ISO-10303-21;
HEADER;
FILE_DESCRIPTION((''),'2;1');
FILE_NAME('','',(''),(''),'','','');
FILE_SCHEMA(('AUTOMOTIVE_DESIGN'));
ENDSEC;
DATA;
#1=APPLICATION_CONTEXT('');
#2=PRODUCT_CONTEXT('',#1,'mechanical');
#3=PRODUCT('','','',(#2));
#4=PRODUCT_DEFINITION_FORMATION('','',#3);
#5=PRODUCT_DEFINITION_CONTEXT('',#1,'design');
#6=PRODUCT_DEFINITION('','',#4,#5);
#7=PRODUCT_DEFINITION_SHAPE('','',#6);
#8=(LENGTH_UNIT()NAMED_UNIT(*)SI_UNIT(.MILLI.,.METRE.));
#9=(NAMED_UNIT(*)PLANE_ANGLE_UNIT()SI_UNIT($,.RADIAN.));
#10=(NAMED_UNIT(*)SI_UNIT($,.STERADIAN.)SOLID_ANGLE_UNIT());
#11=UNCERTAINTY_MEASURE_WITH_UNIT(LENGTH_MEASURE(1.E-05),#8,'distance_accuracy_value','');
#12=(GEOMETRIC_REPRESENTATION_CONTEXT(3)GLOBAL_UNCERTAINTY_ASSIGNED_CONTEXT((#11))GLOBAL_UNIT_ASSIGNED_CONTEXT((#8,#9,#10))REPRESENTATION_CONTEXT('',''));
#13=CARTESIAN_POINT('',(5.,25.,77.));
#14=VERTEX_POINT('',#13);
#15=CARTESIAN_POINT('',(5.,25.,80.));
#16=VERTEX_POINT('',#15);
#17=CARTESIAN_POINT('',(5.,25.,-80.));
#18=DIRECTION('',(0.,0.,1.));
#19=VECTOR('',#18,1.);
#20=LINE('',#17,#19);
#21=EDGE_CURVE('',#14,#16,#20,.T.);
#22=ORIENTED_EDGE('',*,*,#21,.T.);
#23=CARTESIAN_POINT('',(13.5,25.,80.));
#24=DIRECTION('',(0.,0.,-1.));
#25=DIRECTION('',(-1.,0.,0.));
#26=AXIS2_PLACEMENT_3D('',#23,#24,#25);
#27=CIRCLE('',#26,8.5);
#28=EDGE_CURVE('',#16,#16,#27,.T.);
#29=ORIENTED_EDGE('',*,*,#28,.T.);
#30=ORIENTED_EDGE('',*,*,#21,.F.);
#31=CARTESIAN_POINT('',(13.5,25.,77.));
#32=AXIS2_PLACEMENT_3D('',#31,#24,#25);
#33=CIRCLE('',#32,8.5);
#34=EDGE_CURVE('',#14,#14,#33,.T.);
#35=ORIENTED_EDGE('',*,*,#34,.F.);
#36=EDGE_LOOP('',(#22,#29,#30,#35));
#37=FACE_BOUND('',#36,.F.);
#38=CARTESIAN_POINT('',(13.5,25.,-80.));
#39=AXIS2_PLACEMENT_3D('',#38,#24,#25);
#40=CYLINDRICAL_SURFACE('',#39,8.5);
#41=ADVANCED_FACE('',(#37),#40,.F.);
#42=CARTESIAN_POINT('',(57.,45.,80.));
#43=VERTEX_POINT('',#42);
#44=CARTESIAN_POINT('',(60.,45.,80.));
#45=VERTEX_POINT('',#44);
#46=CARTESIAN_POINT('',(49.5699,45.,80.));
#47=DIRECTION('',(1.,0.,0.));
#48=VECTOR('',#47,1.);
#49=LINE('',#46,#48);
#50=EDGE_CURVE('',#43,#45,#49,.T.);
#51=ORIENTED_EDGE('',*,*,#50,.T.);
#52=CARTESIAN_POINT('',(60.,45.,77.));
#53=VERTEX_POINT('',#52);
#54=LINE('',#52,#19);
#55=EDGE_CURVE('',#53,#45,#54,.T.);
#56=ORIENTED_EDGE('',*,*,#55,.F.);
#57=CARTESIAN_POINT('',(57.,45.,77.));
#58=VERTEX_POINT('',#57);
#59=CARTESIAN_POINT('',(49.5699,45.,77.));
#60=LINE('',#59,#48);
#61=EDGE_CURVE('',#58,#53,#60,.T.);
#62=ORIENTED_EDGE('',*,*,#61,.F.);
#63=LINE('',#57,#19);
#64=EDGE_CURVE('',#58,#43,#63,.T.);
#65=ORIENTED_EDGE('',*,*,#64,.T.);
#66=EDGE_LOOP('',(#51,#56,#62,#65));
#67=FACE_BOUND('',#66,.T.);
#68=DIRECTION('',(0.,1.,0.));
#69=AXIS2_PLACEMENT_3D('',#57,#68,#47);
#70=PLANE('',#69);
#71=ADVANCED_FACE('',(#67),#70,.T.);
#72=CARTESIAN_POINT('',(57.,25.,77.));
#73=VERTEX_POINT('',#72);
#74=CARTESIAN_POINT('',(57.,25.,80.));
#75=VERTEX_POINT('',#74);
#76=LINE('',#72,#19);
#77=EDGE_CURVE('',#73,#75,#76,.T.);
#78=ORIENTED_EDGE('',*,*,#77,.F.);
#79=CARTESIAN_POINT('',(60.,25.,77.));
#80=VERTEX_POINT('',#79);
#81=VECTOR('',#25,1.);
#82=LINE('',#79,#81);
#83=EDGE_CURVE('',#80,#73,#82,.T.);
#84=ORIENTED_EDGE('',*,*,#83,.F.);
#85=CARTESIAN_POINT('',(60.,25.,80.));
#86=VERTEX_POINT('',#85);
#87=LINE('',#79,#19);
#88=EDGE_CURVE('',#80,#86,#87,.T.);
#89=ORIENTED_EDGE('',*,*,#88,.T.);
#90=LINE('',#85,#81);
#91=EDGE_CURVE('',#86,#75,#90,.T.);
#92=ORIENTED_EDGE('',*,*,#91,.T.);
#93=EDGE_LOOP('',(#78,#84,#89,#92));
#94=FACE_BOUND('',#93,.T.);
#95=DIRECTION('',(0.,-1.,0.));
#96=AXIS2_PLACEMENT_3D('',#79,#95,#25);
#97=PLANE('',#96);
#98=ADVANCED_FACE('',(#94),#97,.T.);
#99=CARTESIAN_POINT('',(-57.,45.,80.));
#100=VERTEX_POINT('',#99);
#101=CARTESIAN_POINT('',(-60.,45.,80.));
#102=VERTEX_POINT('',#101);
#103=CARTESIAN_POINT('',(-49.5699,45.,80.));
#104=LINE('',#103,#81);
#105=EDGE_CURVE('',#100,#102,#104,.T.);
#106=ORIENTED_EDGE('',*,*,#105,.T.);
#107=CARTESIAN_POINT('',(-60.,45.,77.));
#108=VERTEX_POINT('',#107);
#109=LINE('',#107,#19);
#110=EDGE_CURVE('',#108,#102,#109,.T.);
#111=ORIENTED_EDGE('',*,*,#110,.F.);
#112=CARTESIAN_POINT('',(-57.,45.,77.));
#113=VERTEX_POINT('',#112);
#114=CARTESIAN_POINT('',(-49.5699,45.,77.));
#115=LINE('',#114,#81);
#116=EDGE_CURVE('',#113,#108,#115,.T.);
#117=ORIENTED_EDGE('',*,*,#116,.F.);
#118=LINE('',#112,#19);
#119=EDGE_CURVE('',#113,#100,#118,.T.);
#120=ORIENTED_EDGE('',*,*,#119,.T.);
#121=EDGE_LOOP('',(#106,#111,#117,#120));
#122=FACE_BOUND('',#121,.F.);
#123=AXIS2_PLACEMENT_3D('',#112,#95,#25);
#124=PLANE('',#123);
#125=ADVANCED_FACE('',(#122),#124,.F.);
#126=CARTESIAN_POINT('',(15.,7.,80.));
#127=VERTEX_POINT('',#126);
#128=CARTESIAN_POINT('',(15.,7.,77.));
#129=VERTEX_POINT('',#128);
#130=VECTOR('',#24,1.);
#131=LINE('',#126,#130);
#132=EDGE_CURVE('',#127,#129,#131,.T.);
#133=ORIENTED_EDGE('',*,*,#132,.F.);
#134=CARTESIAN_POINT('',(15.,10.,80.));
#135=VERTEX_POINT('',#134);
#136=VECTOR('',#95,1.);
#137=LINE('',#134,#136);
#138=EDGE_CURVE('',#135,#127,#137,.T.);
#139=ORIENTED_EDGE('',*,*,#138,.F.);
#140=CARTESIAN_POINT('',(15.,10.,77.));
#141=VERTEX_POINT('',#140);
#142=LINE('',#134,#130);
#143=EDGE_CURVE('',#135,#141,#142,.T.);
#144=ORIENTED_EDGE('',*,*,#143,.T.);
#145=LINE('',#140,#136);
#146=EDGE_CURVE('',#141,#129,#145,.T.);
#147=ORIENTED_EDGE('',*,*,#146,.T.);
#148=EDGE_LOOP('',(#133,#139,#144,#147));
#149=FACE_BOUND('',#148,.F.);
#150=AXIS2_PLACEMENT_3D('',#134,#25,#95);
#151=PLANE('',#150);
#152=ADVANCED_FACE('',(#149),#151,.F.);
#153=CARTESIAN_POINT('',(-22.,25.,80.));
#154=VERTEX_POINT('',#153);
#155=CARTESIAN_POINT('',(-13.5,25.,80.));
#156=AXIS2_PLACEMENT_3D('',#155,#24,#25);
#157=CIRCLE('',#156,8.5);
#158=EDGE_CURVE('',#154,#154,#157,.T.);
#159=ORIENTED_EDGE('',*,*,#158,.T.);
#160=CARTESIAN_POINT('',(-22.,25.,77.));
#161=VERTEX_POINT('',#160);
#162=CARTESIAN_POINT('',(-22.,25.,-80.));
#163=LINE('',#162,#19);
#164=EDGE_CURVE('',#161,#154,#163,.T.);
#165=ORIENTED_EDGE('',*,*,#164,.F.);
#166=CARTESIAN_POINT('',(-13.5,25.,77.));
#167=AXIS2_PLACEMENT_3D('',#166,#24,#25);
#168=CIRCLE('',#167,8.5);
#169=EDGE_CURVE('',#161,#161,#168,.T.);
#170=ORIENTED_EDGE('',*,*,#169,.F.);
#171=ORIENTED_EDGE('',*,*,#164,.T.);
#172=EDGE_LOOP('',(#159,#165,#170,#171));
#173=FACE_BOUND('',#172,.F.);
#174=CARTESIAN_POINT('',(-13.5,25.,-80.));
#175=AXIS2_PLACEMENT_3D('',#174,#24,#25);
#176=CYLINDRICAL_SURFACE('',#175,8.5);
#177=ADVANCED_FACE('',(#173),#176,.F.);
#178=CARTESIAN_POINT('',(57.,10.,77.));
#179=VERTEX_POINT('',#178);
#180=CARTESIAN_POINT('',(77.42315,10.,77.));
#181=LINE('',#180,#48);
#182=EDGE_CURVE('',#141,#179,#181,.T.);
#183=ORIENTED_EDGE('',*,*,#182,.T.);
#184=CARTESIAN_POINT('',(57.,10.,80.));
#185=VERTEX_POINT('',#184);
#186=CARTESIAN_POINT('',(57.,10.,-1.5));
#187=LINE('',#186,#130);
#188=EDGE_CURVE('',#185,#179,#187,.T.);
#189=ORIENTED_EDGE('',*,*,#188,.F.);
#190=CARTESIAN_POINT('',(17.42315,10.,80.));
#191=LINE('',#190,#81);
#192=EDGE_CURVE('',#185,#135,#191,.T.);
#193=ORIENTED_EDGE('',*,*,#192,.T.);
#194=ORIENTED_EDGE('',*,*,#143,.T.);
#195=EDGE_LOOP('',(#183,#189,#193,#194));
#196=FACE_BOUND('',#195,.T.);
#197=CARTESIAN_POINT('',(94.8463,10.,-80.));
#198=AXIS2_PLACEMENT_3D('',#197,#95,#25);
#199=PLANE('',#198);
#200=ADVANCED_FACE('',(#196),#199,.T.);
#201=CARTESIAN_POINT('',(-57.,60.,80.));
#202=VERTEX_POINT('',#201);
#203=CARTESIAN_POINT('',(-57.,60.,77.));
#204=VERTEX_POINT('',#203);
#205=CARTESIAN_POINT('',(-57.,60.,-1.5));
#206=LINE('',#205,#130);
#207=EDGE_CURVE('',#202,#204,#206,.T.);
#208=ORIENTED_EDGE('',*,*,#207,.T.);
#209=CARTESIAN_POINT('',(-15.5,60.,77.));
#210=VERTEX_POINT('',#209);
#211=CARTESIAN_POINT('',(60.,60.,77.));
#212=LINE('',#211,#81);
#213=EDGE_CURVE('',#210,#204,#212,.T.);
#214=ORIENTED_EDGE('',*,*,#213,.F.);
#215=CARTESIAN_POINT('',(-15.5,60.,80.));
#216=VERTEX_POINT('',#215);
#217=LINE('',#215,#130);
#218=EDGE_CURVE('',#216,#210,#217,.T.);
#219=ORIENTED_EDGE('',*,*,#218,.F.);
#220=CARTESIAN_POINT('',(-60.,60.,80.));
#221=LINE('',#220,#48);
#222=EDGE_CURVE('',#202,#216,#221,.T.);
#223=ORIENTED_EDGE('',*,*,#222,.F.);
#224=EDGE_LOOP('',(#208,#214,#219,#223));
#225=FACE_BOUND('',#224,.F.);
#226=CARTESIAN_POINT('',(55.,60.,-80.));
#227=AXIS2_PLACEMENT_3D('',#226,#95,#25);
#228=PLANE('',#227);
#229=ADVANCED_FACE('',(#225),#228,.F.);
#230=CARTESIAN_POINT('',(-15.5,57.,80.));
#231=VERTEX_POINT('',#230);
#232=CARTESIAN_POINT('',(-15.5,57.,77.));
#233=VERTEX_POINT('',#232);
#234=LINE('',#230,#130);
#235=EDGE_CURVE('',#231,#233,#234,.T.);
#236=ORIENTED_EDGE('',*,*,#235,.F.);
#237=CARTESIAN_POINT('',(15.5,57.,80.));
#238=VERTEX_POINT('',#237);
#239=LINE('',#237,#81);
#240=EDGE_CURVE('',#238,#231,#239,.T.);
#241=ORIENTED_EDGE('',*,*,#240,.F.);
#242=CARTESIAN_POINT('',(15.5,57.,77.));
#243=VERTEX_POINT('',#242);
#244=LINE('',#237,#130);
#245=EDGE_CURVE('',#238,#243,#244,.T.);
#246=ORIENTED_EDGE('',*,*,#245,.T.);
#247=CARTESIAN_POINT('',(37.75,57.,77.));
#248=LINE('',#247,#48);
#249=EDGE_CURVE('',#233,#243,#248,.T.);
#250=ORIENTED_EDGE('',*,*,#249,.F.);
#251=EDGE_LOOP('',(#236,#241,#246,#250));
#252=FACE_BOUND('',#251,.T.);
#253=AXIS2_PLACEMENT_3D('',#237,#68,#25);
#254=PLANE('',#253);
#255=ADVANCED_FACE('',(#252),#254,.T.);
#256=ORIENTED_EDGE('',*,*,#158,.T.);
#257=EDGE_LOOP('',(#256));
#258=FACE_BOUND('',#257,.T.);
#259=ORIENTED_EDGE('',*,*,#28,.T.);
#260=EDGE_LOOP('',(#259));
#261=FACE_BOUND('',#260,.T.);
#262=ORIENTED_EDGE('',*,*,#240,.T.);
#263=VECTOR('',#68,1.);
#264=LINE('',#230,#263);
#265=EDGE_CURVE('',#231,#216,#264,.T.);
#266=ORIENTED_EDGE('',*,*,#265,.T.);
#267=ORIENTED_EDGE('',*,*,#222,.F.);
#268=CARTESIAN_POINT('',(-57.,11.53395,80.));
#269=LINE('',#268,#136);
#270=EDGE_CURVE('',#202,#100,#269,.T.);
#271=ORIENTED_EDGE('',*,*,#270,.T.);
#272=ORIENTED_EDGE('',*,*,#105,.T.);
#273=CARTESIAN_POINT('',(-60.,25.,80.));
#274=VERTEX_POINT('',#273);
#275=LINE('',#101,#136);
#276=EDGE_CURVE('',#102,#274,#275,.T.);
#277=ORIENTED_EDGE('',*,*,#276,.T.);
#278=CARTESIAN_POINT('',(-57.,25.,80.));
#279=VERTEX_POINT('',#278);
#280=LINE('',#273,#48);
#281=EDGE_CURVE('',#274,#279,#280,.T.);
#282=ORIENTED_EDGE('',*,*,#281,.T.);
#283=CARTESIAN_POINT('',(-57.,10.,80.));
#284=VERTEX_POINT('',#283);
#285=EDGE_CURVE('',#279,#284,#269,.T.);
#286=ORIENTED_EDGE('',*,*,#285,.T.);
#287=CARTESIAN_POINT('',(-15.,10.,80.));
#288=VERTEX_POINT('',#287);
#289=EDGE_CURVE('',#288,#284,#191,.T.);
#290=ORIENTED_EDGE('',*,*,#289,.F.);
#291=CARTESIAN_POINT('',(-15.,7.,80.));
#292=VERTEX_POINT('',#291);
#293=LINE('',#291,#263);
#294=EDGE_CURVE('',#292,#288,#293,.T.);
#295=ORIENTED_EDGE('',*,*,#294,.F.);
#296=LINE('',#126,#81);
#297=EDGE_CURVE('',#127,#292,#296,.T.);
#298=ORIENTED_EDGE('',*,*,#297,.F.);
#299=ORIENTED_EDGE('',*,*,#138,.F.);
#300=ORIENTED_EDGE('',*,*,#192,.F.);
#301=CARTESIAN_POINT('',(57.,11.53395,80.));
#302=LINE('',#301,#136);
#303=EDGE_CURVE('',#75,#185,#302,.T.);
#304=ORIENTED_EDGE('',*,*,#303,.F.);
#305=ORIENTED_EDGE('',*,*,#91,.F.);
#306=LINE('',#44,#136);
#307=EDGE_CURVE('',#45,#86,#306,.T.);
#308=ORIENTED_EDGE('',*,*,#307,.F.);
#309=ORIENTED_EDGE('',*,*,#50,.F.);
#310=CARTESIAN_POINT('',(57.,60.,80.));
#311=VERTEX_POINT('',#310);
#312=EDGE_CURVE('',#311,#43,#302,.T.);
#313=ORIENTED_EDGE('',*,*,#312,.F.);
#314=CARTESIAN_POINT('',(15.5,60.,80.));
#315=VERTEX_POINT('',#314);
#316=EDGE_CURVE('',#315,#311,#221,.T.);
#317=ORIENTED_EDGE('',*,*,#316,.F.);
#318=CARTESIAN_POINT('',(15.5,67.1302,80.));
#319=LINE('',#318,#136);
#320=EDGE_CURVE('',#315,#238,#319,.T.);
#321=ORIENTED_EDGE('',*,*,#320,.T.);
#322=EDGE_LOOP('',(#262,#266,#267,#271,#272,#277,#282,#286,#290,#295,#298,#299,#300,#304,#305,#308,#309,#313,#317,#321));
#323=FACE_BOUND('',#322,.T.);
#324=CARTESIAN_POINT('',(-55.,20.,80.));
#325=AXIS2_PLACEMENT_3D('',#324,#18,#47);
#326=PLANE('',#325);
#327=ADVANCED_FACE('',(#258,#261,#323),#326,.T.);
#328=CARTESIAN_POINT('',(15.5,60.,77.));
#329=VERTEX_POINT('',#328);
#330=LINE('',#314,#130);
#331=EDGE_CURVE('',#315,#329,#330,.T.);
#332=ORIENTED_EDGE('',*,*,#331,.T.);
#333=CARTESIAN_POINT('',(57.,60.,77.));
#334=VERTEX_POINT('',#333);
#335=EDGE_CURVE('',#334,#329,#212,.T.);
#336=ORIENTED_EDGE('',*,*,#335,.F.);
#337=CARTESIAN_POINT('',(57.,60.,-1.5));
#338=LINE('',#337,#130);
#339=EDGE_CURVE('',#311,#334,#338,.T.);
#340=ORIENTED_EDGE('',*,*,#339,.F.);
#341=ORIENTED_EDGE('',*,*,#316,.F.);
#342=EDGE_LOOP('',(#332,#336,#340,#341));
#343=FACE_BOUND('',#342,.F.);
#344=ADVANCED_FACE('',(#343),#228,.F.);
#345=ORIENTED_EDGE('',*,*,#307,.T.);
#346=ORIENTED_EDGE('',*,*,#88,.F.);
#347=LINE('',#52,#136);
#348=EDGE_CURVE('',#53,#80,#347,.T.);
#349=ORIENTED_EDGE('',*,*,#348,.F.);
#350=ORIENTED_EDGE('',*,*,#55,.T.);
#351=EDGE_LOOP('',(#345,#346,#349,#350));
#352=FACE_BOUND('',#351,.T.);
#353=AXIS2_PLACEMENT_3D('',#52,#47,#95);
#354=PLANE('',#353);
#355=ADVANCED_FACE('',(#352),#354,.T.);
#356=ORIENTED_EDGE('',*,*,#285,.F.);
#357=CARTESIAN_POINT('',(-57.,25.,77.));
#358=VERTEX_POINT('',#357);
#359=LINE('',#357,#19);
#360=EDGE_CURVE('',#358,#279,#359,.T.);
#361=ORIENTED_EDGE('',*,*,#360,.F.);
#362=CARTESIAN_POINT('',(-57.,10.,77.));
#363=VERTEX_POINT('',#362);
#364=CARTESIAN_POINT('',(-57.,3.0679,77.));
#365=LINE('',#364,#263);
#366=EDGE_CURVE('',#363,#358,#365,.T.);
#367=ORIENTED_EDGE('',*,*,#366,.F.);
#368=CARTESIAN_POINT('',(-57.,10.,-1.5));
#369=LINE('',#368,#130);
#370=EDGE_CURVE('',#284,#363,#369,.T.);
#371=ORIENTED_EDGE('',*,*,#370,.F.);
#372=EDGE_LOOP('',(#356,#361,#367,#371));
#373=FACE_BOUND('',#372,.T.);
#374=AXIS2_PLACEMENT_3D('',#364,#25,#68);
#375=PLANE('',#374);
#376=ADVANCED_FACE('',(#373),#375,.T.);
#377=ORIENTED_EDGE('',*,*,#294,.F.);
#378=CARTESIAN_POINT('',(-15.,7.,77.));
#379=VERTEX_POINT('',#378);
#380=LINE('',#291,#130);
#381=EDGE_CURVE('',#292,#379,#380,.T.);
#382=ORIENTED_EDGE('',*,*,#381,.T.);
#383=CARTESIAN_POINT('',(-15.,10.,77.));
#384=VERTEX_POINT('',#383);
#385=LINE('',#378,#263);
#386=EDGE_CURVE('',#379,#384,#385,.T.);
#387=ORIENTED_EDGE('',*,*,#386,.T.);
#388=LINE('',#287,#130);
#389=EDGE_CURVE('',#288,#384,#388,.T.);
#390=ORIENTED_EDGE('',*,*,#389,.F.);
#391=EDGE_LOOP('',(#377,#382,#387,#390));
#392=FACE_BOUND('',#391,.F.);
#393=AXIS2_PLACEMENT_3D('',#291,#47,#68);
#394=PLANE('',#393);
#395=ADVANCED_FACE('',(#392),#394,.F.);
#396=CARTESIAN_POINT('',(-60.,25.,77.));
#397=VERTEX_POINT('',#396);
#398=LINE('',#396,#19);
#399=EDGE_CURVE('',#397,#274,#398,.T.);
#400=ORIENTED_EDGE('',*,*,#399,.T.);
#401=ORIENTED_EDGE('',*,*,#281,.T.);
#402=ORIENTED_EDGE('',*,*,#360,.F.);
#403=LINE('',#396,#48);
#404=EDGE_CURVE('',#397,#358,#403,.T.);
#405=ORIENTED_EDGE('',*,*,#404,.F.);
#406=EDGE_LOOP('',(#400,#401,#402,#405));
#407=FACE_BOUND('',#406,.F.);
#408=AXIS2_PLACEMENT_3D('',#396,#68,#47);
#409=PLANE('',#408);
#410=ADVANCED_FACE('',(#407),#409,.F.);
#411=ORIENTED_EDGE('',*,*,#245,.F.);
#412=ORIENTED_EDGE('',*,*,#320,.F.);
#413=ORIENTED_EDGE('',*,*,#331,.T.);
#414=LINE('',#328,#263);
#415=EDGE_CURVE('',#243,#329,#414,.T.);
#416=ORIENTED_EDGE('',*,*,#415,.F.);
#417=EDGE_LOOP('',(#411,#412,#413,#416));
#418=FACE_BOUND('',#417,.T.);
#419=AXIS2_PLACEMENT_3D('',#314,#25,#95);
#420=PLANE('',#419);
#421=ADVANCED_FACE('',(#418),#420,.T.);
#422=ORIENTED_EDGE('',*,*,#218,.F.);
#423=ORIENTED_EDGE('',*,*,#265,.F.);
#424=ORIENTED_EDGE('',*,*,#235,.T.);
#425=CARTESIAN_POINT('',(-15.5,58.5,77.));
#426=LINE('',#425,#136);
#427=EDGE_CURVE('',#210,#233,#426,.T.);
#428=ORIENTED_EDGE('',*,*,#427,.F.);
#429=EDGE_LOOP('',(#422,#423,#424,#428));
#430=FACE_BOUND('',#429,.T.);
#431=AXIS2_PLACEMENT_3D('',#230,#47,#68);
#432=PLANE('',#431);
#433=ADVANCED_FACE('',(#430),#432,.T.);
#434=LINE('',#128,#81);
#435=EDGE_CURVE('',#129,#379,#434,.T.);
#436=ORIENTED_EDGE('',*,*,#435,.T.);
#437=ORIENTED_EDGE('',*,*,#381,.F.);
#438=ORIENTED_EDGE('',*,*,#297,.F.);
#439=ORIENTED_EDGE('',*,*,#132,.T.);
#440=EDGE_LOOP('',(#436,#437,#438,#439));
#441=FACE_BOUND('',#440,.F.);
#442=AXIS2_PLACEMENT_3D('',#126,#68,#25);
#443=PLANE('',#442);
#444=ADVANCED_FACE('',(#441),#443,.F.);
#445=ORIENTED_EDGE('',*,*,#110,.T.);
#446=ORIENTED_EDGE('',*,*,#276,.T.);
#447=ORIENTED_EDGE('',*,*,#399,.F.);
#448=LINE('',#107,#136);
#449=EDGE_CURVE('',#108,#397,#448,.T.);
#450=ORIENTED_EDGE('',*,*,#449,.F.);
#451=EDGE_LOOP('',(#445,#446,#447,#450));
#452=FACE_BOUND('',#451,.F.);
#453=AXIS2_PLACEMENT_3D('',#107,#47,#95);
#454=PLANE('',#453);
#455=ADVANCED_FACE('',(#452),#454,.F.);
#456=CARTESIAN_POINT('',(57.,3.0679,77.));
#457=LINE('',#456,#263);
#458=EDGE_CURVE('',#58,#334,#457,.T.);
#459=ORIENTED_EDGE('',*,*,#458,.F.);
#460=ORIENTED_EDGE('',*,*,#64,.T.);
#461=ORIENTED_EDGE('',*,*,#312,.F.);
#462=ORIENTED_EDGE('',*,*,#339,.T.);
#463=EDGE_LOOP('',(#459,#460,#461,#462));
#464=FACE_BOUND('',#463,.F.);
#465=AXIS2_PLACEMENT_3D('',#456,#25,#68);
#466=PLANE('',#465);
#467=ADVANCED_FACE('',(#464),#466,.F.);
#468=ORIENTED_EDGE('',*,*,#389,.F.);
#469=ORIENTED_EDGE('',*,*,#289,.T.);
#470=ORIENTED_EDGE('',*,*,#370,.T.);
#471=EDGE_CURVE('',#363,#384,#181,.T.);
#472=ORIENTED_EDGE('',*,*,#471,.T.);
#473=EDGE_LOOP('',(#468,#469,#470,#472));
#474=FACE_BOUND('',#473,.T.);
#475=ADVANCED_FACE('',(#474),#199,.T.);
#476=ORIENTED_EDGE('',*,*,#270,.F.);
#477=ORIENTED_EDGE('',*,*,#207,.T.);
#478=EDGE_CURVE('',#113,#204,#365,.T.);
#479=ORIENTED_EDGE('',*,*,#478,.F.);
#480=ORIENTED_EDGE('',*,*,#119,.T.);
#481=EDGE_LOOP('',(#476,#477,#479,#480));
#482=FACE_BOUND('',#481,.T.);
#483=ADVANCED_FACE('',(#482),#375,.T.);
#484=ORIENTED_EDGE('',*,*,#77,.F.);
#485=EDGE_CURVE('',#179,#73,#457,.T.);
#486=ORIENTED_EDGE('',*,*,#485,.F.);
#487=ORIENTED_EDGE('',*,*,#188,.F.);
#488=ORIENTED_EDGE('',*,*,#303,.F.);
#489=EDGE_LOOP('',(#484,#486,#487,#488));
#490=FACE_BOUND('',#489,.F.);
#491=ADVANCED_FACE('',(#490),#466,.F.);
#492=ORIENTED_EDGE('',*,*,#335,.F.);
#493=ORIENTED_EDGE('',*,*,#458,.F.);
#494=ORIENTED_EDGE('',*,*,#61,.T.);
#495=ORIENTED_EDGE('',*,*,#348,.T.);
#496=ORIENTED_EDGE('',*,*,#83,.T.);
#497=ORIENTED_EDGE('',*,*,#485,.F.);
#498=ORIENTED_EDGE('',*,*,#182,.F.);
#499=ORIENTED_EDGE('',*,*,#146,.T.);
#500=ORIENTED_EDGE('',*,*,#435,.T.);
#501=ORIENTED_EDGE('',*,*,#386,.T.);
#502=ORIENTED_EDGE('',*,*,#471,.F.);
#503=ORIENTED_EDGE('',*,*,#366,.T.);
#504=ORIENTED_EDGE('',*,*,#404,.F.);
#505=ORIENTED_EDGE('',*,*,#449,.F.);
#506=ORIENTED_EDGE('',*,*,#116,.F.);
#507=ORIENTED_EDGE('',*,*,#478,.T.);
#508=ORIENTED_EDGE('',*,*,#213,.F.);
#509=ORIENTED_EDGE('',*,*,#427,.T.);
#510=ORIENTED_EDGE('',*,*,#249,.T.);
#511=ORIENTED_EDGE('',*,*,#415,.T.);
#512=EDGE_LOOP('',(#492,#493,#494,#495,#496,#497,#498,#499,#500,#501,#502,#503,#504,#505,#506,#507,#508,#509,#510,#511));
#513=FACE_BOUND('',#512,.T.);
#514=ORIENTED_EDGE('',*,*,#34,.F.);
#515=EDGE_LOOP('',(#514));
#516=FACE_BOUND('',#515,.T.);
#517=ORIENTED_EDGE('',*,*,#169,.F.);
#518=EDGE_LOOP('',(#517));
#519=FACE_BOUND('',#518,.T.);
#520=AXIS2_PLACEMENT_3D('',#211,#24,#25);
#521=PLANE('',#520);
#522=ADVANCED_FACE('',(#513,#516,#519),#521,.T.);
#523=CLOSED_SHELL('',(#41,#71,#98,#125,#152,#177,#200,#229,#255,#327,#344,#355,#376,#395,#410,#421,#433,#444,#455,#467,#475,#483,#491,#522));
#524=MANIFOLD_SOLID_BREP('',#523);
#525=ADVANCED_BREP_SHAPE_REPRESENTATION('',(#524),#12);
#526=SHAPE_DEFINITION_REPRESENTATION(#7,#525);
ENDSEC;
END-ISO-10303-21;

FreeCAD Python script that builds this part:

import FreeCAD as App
import Part
import Sketcher
Q = App.Units.Quantity

doc = App.newDocument("Part")
body = doc.addObject("PartDesign::Body", "Body")

sketch1 = body.newObject("Sketcher::SketchObject", "Sketch")
sketch1.AttachmentSupport = (doc.getObject("XZ_Plane"), [""])
sketch1.MapMode = "FlatFace"
sketch1.addGeometry([
    Part.LineSegment(App.Vector(-60, -80, 0), App.Vector(-60, 80, 0)),
    Part.LineSegment(App.Vector(-60, 80, 0), App.Vector(60, 80, 0)),
    Part.LineSegment(App.Vector(60, 80, 0), App.Vector(60, -80, 0)),
    Part.LineSegment(App.Vector(60, -80, 0), App.Vector(-60, -80, 0)),
], False)
sketch1.addConstraint([
    Sketcher.Constraint("Coincident", 0, 2, 1, 1),
    Sketcher.Constraint("Coincident", 1, 2, 2, 1),
    Sketcher.Constraint("Coincident", 2, 2, 3, 1),
    Sketcher.Constraint("Coincident", 3, 2, 0, 1),
    Sketcher.Constraint("Vertical", 0),
    Sketcher.Constraint("Horizontal", 1),
    Sketcher.Constraint("Vertical", 2),
    Sketcher.Constraint("Horizontal", 3),
    Sketcher.Constraint("Symmetric", 0, 2, 2, 2, -1, 1),
    Sketcher.Constraint("DistanceX", 1, 1, 1, 2, Q("120 mm")),
    Sketcher.Constraint("DistanceY", 0, 1, 0, 2, Q("160 mm")),
])
pad1 = body.newObject("PartDesign::Pad", "Pad")
pad1.Profile = sketch1
pad1.Length = 60
pad1.Reversed = True

sketch2 = body.newObject("Sketcher::SketchObject", "Sketch001")
sketch2.AttachmentSupport = (doc.getObject("XZ_Plane"), [""])
sketch2.MapMode = "FlatFace"
sketch2.AttachmentOffset = App.Placement(App.Vector(0, 0, -60), App.Rotation())
sketch2.addGeometry([
    Part.LineSegment(App.Vector(55, 89.711, 0), App.Vector(55, -80, 0)),
    Part.LineSegment(App.Vector(55, -80, 0), App.Vector(-55, -80, 0)),
    Part.LineSegment(App.Vector(-55, -80, 0), App.Vector(-55, 89.711, 0)),
    Part.LineSegment(App.Vector(-55, 89.711, 0), App.Vector(55, 89.711, 0)),
], False)
sketch2.addConstraint([
    Sketcher.Constraint("Coincident", 0, 2, 1, 1),
    Sketcher.Constraint("Coincident", 1, 2, 2, 1),
    Sketcher.Constraint("Coincident", 2, 2, 3, 1),
    Sketcher.Constraint("Coincident", 3, 2, 0, 1),
    Sketcher.Constraint("Vertical", 0),
    Sketcher.Constraint("Horizontal", 1),
    Sketcher.Constraint("Vertical", 2),
    Sketcher.Constraint("Horizontal", 3),
    Sketcher.Constraint("DistanceX", 1, 2, 1, 1, Q("110 mm")),
    Sketcher.Constraint("DistanceX", -1, 1, 0, 2, Q("55 mm")),
    Sketcher.Constraint("DistanceY", 0, 2, -1, 1, Q("80 mm")),
    Sketcher.Constraint("DistanceY", 0, 2, 0, 1, Q("169.711 mm")),
])
pocket1 = body.newObject("PartDesign::Pocket", "Pocket")
pocket1.Profile = sketch2
pocket1.Length = 40
pocket1.Reversed = True

sketch3 = body.newObject("Sketcher::SketchObject", "Sketch002")
sketch3.AttachmentSupport = (doc.getObject("XY_Plane"), [""])
sketch3.MapMode = "FlatFace"
sketch3.AttachmentOffset = App.Placement(App.Vector(0, 0, -80), App.Rotation())
sketch3.addGeometry([
    Part.LineSegment(App.Vector(-96.2634, 10, 0), App.Vector(94.8463, 10, 0)),
    Part.LineSegment(App.Vector(94.8463, 10, 0), App.Vector(94.8463, -36.9465, 0)),
    Part.LineSegment(App.Vector(94.8463, -36.9465, 0), App.Vector(-96.2634, -36.9465, 0)),
    Part.LineSegment(App.Vector(-96.2634, -36.9465, 0), App.Vector(-96.2634, 10, 0)),
], False)
sketch3.addConstraint([
    Sketcher.Constraint("Coincident", 0, 2, 1, 1),
    Sketcher.Constraint("Coincident", 1, 2, 2, 1),
    Sketcher.Constraint("Coincident", 2, 2, 3, 1),
    Sketcher.Constraint("Coincident", 3, 2, 0, 1),
    Sketcher.Constraint("Horizontal", 0),
    Sketcher.Constraint("Vertical", 1),
    Sketcher.Constraint("Horizontal", 2),
    Sketcher.Constraint("Vertical", 3),
    Sketcher.Constraint("DistanceY", -1, 1, 0, 2, Q("10 mm")),
    Sketcher.Constraint("DistanceX", 0, 1, 0, 2, Q("191.1097 mm")),
    Sketcher.Constraint("DistanceY", 1, 2, 1, 1, Q("46.9465 mm")),
    Sketcher.Constraint("DistanceX", -1, 1, 0, 2, Q("94.8463 mm")),
])
pocket2 = body.newObject("PartDesign::Pocket", "Pocket001")
pocket2.Profile = sketch3
pocket2.Type = "ThroughAll"
pocket2.Reversed = True

sketch4 = body.newObject("Sketcher::SketchObject", "Sketch003")
sketch4.AttachmentSupport = (doc.getObject("XY_Plane"), [""])
sketch4.MapMode = "FlatFace"
sketch4.AttachmentOffset = App.Placement(App.Vector(0, 0, 80), App.Rotation())
sketch4.addGeometry([
    Part.LineSegment(App.Vector(55, 60, 0), App.Vector(-55, 60, 0)),
    Part.LineSegment(App.Vector(-55, 60, 0), App.Vector(-55, 20, 0)),
    Part.LineSegment(App.Vector(-55, 20, 0), App.Vector(55, 20, 0)),
    Part.LineSegment(App.Vector(55, 20, 0), App.Vector(55, 60, 0)),
], False)
sketch4.addConstraint([
    Sketcher.Constraint("Coincident", 0, 2, 1, 1),
    Sketcher.Constraint("Coincident", 1, 2, 2, 1),
    Sketcher.Constraint("Coincident", 2, 2, 3, 1),
    Sketcher.Constraint("Coincident", 3, 2, 0, 1),
    Sketcher.Constraint("Horizontal", 0),
    Sketcher.Constraint("Vertical", 1),
    Sketcher.Constraint("Horizontal", 2),
    Sketcher.Constraint("Vertical", 3),
    Sketcher.Constraint("DistanceX", 0, 2, 0, 1, Q("110 mm")),
    Sketcher.Constraint("DistanceY", 1, 2, 1, 1, Q("40 mm")),
    Sketcher.Constraint("DistanceX", 0, 2, -1, 1, Q("55 mm")),
    Sketcher.Constraint("DistanceY", -1, 1, 0, 2, Q("60 mm")),
])
pad2 = body.newObject("PartDesign::Pad", "Pad001")
pad2.Profile = sketch4
pad2.Length = 5
pad2.Reversed = True

sketch5 = body.newObject("Sketcher::SketchObject", "Sketch004")
sketch5.AttachmentSupport = (doc.getObject("XY_Plane"), [""])
sketch5.MapMode = "FlatFace"
sketch5.AttachmentOffset = App.Placement(App.Vector(0, 0, -80), App.Rotation())
sketch5.addGeometry([
    Part.LineSegment(App.Vector(55, 60, 0), App.Vector(55, 20, 0)),
    Part.LineSegment(App.Vector(55, 20, 0), App.Vector(-55, 20, 0)),
    Part.LineSegment(App.Vector(-55, 20, 0), App.Vector(-55, 60, 0)),
    Part.LineSegment(App.Vector(-55, 60, 0), App.Vector(55, 60, 0)),
], False)
sketch5.addConstraint([
    Sketcher.Constraint("Coincident", 0, 2, 1, 1),
    Sketcher.Constraint("Coincident", 1, 2, 2, 1),
    Sketcher.Constraint("Coincident", 2, 2, 3, 1),
    Sketcher.Constraint("Coincident", 3, 2, 0, 1),
    Sketcher.Constraint("Vertical", 0),
    Sketcher.Constraint("Horizontal", 1),
    Sketcher.Constraint("Vertical", 2),
    Sketcher.Constraint("Horizontal", 3),
    Sketcher.Constraint("DistanceX", 1, 2, 1, 1, Q("110 mm")),
    Sketcher.Constraint("DistanceY", 0, 2, 0, 1, Q("40 mm")),
    Sketcher.Constraint("DistanceX", -1, 1, 0, 2, Q("55 mm")),
    Sketcher.Constraint("DistanceY", -1, 1, 0, 2, Q("20 mm")),
])
pad3 = body.newObject("PartDesign::Pad", "Pad002")
pad3.Profile = sketch5
pad3.Length = 5

sketch6 = body.newObject("Sketcher::SketchObject", "Sketch005")
sketch6.AttachmentSupport = (doc.getObject("XZ_Plane"), [""])
sketch6.MapMode = "FlatFace"
sketch6.AttachmentOffset = App.Placement(App.Vector(0, 0, -20), App.Rotation())
sketch6.addGeometry([
    Part.Circle(App.Vector(7, -27, 0), App.Vector(0, 0, 1), 1.6),
    Part.Circle(App.Vector(45, -27, 0), App.Vector(0, 0, 1), 1.6),
    Part.Circle(App.Vector(7, -65, 0), App.Vector(0, 0, 1), 1.6),
    Part.Circle(App.Vector(45, -65, 0), App.Vector(0, 0, 1), 1.6),
], False)
sketch6.addConstraint([
    Sketcher.Constraint("Equal", 0, 1),
    Sketcher.Constraint("Equal", 1, 2),
    Sketcher.Constraint("Equal", 2, 3),
    Sketcher.Constraint("Horizontal", 0, 3, 1, 3),
    Sketcher.Constraint("Horizontal", 2, 3, 3, 3),
    Sketcher.Constraint("Vertical", 0, 3, 2, 3),
    Sketcher.Constraint("Vertical", 1, 3, 3, 3),
    Sketcher.Constraint("Diameter", 0, Q("3.2 mm")),
    Sketcher.Constraint("DistanceX", 0, 3, 1, 3, Q("38 mm")),
    Sketcher.Constraint("DistanceY", 2, 3, 0, 3, Q("38 mm")),
    Sketcher.Constraint("DistanceX", -1, 1, 0, 3, Q("7 mm")),
    Sketcher.Constraint("DistanceY", 0, 3, -1, 1, Q("27 mm")),
])
pocket3 = body.newObject("PartDesign::Pocket", "Pocket002")
pocket3.Profile = sketch6
pocket3.Type = "ThroughAll"
pocket3.Reversed = True

sketch7 = body.newObject("Sketcher::SketchObject", "Sketch006")
sketch7.AttachmentSupport = (doc.getObject("XY_Plane"), [""])
sketch7.MapMode = "FlatFace"
sketch7.AttachmentOffset = App.Placement(App.Vector(0, 0, -80), App.Rotation())
sketch7.addGeometry([
    Part.Circle(App.Vector(13.5, 25, 0), App.Vector(0, 0, 1), 8.5),
    Part.Circle(App.Vector(-13.5, 25, 0), App.Vector(0, 0, 1), 8.5),
], False)
sketch7.addConstraint([
    Sketcher.Constraint("Equal", 0, 1),
    Sketcher.Constraint("Symmetric", 0, 3, 1, 3, -2),
    Sketcher.Constraint("Diameter", 0, Q("17 mm")),
    Sketcher.Constraint("DistanceX", 1, 3, 0, 3, Q("27 mm")),
    Sketcher.Constraint("DistanceY", -1, 1, 0, 3, Q("25 mm")),
])
pocket4 = body.newObject("PartDesign::Pocket", "Pocket003")
pocket4.Profile = sketch7
pocket4.Type = "ThroughAll"
pocket4.Reversed = True

sketch8 = body.newObject("Sketcher::SketchObject", "Sketch007")
sketch8.AttachmentSupport = (doc.getObject("XZ_Plane"), [""])
sketch8.MapMode = "FlatFace"
sketch8.AttachmentOffset = App.Placement(App.Vector(0, 0, -20), App.Rotation())
sketch8.addGeometry(Part.Circle(App.Vector(5.4243, -8.1678, 0), App.Vector(0, 0, 1), 7.5), False)
sketch8.addConstraint([
    Sketcher.Constraint("Diameter", 0, Q("15 mm")),
    Sketcher.Constraint("DistanceX", -1, 1, 0, 3, Q("5.4243 mm")),
    Sketcher.Constraint("DistanceY", 0, 3, -1, 1, Q("8.1678 mm")),
])
pocket5 = body.newObject("PartDesign::Pocket", "Pocket004")
pocket5.Profile = sketch8
pocket5.Type = "ThroughAll"
pocket5.Reversed = True

sketch9 = body.newObject("Sketcher::SketchObject", "Sketch008")
sketch9.AttachmentSupport = (doc.getObject("XZ_Plane"), [""])
sketch9.MapMode = "FlatFace"
sketch9.AttachmentOffset = App.Placement(App.Vector(0, 0, -20), App.Rotation())
sketch9.addGeometry([
    Part.Circle(App.Vector(4.7, 62.45, 0), App.Vector(0, 0, 1), 1.6),
    Part.Circle(App.Vector(6.03, 14.15, 0), App.Vector(0, 0, 1), 1.6),
    Part.Circle(App.Vector(-46.05, 47.16, 0), App.Vector(0, 0, 1), 1.6),
    Part.Circle(App.Vector(-46.05, 19.23, 0), App.Vector(0, 0, 1), 1.6),
], False)
sketch9.addConstraint([
    Sketcher.Constraint("Equal", 0, 1),
    Sketcher.Constraint("Equal", 1, 2),
    Sketcher.Constraint("Equal", 2, 3),
    Sketcher.Constraint("Vertical", 2, 3, 3, 3),
    Sketcher.Constraint("Diameter", 0, Q("3.2 mm")),
    Sketcher.Constraint("DistanceX", -1, 1, 0, 3, Q("4.7 mm")),
    Sketcher.Constraint("DistanceY", 1, 3, 0, 3, Q("48.3 mm")),
    Sketcher.Constraint("DistanceY", -1, 1, 0, 3, Q("62.45 mm")),
    Sketcher.Constraint("DistanceX", -1, 1, 1, 3, Q("6.03 mm")),
    Sketcher.Constraint("DistanceX", 2, 3, -1, 1, Q("46.05 mm")),
    Sketcher.Constraint("DistanceY", -1, 1, 2, 3, Q("47.16 mm")),
    Sketcher.Constraint("DistanceY", -1, 1, 3, 3, Q("19.23 mm")),
])
pocket6 = body.newObject("PartDesign::Pocket", "Pocket005")
pocket6.Profile = sketch9
pocket6.Type = "ThroughAll"
pocket6.Reversed = True

sketch10 = body.newObject("Sketcher::SketchObject", "Sketch009")
sketch10.AttachmentSupport = (doc.getObject("XZ_Plane"), [""])
sketch10.MapMode = "FlatFace"
sketch10.AttachmentOffset = App.Placement(App.Vector(0, 0, -20), App.Rotation())
sketch10.addGeometry([
    Part.LineSegment(App.Vector(-55, -75, 0), App.Vector(-55, 75, 0)),
    Part.LineSegment(App.Vector(-55, 75, 0), App.Vector(55, 75, 0)),
    Part.LineSegment(App.Vector(55, 75, 0), App.Vector(55, -75, 0)),
    Part.LineSegment(App.Vector(55, -75, 0), App.Vector(-55, -75, 0)),
], False)
sketch10.addConstraint([
    Sketcher.Constraint("Coincident", 0, 2, 1, 1),
    Sketcher.Constraint("Coincident", 1, 2, 2, 1),
    Sketcher.Constraint("Coincident", 2, 2, 3, 1),
    Sketcher.Constraint("Coincident", 3, 2, 0, 1),
    Sketcher.Constraint("Vertical", 0),
    Sketcher.Constraint("Horizontal", 1),
    Sketcher.Constraint("Vertical", 2),
    Sketcher.Constraint("Horizontal", 3),
    Sketcher.Constraint("Symmetric", 0, 2, 2, 2, -1, 1),
    Sketcher.Constraint("DistanceX", 1, 1, 1, 2, Q("110 mm")),
    Sketcher.Constraint("DistanceY", 0, 1, 0, 2, Q("150 mm")),
])
pocket7 = body.newObject("PartDesign::Pocket", "Pocket006")
pocket7.Profile = sketch10
pocket7.Type = "ThroughAll"
pocket7.Reversed = True

sketch11 = body.newObject("Sketcher::SketchObject", "Sketch010")
sketch11.AttachmentSupport = (doc.getObject("XZ_Plane"), [""])
sketch11.MapMode = "FlatFace"
sketch11.AttachmentOffset = App.Placement(App.Vector(0, 0, -60), App.Rotation())
sketch11.addGeometry([
    Part.LineSegment(App.Vector(60, -80, 0), App.Vector(-60, -80, 0)),
    Part.LineSegment(App.Vector(-60, -80, 0), App.Vector(-60, 77, 0)),
    Part.LineSegment(App.Vector(-60, 77, 0), App.Vector(60, 77, 0)),
    Part.LineSegment(App.Vector(60, 77, 0), App.Vector(60, -80, 0)),
], False)
sketch11.addConstraint([
    Sketcher.Constraint("Coincident", 0, 2, 1, 1),
    Sketcher.Constraint("Coincident", 1, 2, 2, 1),
    Sketcher.Constraint("Coincident", 2, 2, 3, 1),
    Sketcher.Constraint("Coincident", 3, 2, 0, 1),
    Sketcher.Constraint("Horizontal", 0),
    Sketcher.Constraint("Vertical", 1),
    Sketcher.Constraint("Horizontal", 2),
    Sketcher.Constraint("Vertical", 3),
    Sketcher.Constraint("DistanceX", 0, 2, 0, 1, Q("120 mm")),
    Sketcher.Constraint("DistanceY", 1, 1, 1, 2, Q("157 mm")),
    Sketcher.Constraint("DistanceX", 0, 2, -1, 1, Q("60 mm")),
    Sketcher.Constraint("DistanceY", 0, 2, -1, 1, Q("80 mm")),
])
pocket8 = body.newObject("PartDesign::Pocket", "Pocket007")
pocket8.Profile = sketch11
pocket8.Type = "ThroughAll"
pocket8.Reversed = True

sketch12 = body.newObject("Sketcher::SketchObject", "Sketch011")
sketch12.AttachmentSupport = (doc.getObject("XY_Plane"), [""])
sketch12.MapMode = "FlatFace"
sketch12.AttachmentOffset = App.Placement(App.Vector(0, 0, 80), App.Rotation())
sketch12.addGeometry([
    Part.LineSegment(App.Vector(15, 10, 0), App.Vector(-15, 10, 0)),
    Part.LineSegment(App.Vector(-15, 10, 0), App.Vector(-15, 7, 0)),
    Part.LineSegment(App.Vector(-15, 7, 0), App.Vector(15, 7, 0)),
    Part.LineSegment(App.Vector(15, 7, 0), App.Vector(15, 10, 0)),
], False)
sketch12.addConstraint([
    Sketcher.Constraint("Coincident", 0, 2, 1, 1),
    Sketcher.Constraint("Coincident", 1, 2, 2, 1),
    Sketcher.Constraint("Coincident", 2, 2, 3, 1),
    Sketcher.Constraint("Coincident", 3, 2, 0, 1),
    Sketcher.Constraint("Horizontal", 0),
    Sketcher.Constraint("Vertical", 1),
    Sketcher.Constraint("Horizontal", 2),
    Sketcher.Constraint("Vertical", 3),
    Sketcher.Constraint("DistanceY", 1, 2, 1, 1, Q("3 mm")),
    Sketcher.Constraint("DistanceX", 0, 2, 0, 1, Q("30 mm")),
    Sketcher.Constraint("DistanceX", 0, 2, -1, 1, Q("15 mm")),
    Sketcher.Constraint("DistanceY", -1, 1, 0, 2, Q("10 mm")),
])
pad4 = body.newObject("PartDesign::Pad", "Pad003")
pad4.Profile = sketch12
pad4.Length = 3
pad4.Reversed = True

sketch13 = body.newObject("Sketcher::SketchObject", "Sketch012")
sketch13.AttachmentSupport = (doc.getObject("XY_Plane"), [""])
sketch13.MapMode = "FlatFace"
sketch13.AttachmentOffset = App.Placement(App.Vector(0, 0, 80), App.Rotation())
sketch13.addGeometry([
    Part.LineSegment(App.Vector(63, 45, 0), App.Vector(60, 45, 0)),
    Part.LineSegment(App.Vector(60, 45, 0), App.Vector(60, 25, 0)),
    Part.LineSegment(App.Vector(60, 25, 0), App.Vector(63, 25, 0)),
    Part.LineSegment(App.Vector(63, 25, 0), App.Vector(63, 45, 0)),
], False)
sketch13.addConstraint([
    Sketcher.Constraint("Coincident", 0, 2, 1, 1),
    Sketcher.Constraint("Coincident", 1, 2, 2, 1),
    Sketcher.Constraint("Coincident", 2, 2, 3, 1),
    Sketcher.Constraint("Coincident", 3, 2, 0, 1),
    Sketcher.Constraint("Horizontal", 0),
    Sketcher.Constraint("Vertical", 1),
    Sketcher.Constraint("Horizontal", 2),
    Sketcher.Constraint("Vertical", 3),
    Sketcher.Constraint("DistanceX", 0, 2, 0, 1, Q("3 mm")),
    Sketcher.Constraint("DistanceY", 1, 2, 1, 1, Q("20 mm")),
    Sketcher.Constraint("DistanceX", -1, 1, 0, 2, Q("60 mm")),
    Sketcher.Constraint("DistanceY", -1, 1, 0, 2, Q("45 mm")),
])
pad5 = body.newObject("PartDesign::Pad", "Pad004")
pad5.Profile = sketch13
pad5.Length = 3
pad5.Reversed = True
doc.recompute()

mirrored = body.newObject("PartDesign::Mirrored", "Mirrored")
mirrored.Originals = [pad5]
mirrored.MirrorPlane = (doc.getObject("YZ_Plane"), [""])
body.Tip = mirrored

sketch14 = body.newObject("Sketcher::SketchObject", "Sketch013")
sketch14.AttachmentSupport = (doc.getObject("XY_Plane"), [""])
sketch14.MapMode = "FlatFace"
sketch14.AttachmentOffset = App.Placement(App.Vector(0, 0, 80), App.Rotation())
sketch14.addGeometry([
    Part.LineSegment(App.Vector(15.5, 60, 0), App.Vector(-15.5, 60, 0)),
    Part.LineSegment(App.Vector(-15.5, 60, 0), App.Vector(-15.5, 57, 0)),
    Part.LineSegment(App.Vector(-15.5, 57, 0), App.Vector(15.5, 57, 0)),
    Part.LineSegment(App.Vector(15.5, 57, 0), App.Vector(15.5, 60, 0)),
], False)
sketch14.addConstraint([
    Sketcher.Constraint("Coincident", 0, 2, 1, 1),
    Sketcher.Constraint("Coincident", 1, 2, 2, 1),
    Sketcher.Constraint("Coincident", 2, 2, 3, 1),
    Sketcher.Constraint("Coincident", 3, 2, 0, 1),
    Sketcher.Constraint("Horizontal", 0),
    Sketcher.Constraint("Vertical", 1),
    Sketcher.Constraint("Horizontal", 2),
    Sketcher.Constraint("Vertical", 3),
    Sketcher.Constraint("DistanceX", 0, 2, 0, 1, Q("31 mm")),
    Sketcher.Constraint("DistanceY", 1, 2, 1, 1, Q("3 mm")),
    Sketcher.Constraint("DistanceY", -1, 1, 0, 2, Q("60 mm")),
    Sketcher.Constraint("DistanceX", 0, 2, -1, 1, Q("15.5 mm")),
])
pocket9 = body.newObject("PartDesign::Pocket", "Pocket008")
pocket9.Profile = sketch14
pocket9.Type = "ThroughAll"

sketch15 = body.newObject("Sketcher::SketchObject", "Sketch014")
sketch15.AttachmentSupport = (doc.getObject("XY_Plane"), [""])
sketch15.MapMode = "FlatFace"
sketch15.AttachmentOffset = App.Placement(App.Vector(0, 0, 77), App.Rotation())
sketch15.addGeometry([
    Part.LineSegment(App.Vector(-85.6874, 64.1407, 0), App.Vector(-57, 64.1407, 0)),
    Part.LineSegment(App.Vector(-57, 64.1407, 0), App.Vector(-57, 3.0679, 0)),
    Part.LineSegment(App.Vector(-57, 3.0679, 0), App.Vector(-85.6874, 3.0679, 0)),
    Part.LineSegment(App.Vector(-85.6874, 3.0679, 0), App.Vector(-85.6874, 64.1407, 0)),
    Part.LineSegment(App.Vector(57, 3.0679, 0), App.Vector(57, 64.1407, 0)),
    Part.LineSegment(App.Vector(57, 64.1407, 0), App.Vector(85.6874, 64.1407, 0)),
    Part.LineSegment(App.Vector(85.6874, 64.1407, 0), App.Vector(85.6874, 3.0679, 0)),
    Part.LineSegment(App.Vector(85.6874, 3.0679, 0), App.Vector(57, 3.0679, 0)),
], False)
sketch15.addConstraint([
    Sketcher.Constraint("Coincident", 0, 2, 1, 1),
    Sketcher.Constraint("Coincident", 1, 2, 2, 1),
    Sketcher.Constraint("Coincident", 2, 2, 3, 1),
    Sketcher.Constraint("Coincident", 3, 2, 0, 1),
    Sketcher.Constraint("Coincident", 4, 2, 5, 1),
    Sketcher.Constraint("Coincident", 5, 2, 6, 1),
    Sketcher.Constraint("Coincident", 6, 2, 7, 1),
    Sketcher.Constraint("Coincident", 7, 2, 4, 1),
    Sketcher.Constraint("Horizontal", 0),
    Sketcher.Constraint("Vertical", 1),
    Sketcher.Constraint("Horizontal", 2),
    Sketcher.Constraint("Vertical", 3),
    Sketcher.Constraint("Vertical", 4),
    Sketcher.Constraint("Horizontal", 5),
    Sketcher.Constraint("Vertical", 6),
    Sketcher.Constraint("Horizontal", 7),
    Sketcher.Constraint("Symmetric", 0, 2, 4, 2, -2),
    Sketcher.Constraint("Symmetric", 2, 2, 6, 2, -2),
    Sketcher.Constraint("DistanceX", 0, 2, -1, 1, Q("57 mm")),
    Sketcher.Constraint("DistanceX", 0, 1, 0, 2, Q("28.6874 mm")),
    Sketcher.Constraint("DistanceY", 1, 2, 1, 1, Q("61.0728 mm")),
    Sketcher.Constraint("DistanceY", -1, 1, 1, 2, Q("3.068 mm")),
])
pocket10 = body.newObject("PartDesign::Pocket", "Pocket009")
pocket10.Profile = sketch15
pocket10.Type = "ThroughAll"
pocket10.Reversed = True

sketch16 = body.newObject("Sketcher::SketchObject", "Sketch015")
sketch16.AttachmentSupport = (doc.getObject("XY_Plane"), [""])
sketch16.MapMode = "FlatFace"
sketch16.AttachmentOffset = App.Placement(App.Vector(0, 0, 77), App.Rotation())
sketch16.addGeometry([
    Part.LineSegment(App.Vector(-60, 45, 0), App.Vector(-57, 45, 0)),
    Part.LineSegment(App.Vector(-57, 45, 0), App.Vector(-57, 25, 0)),
    Part.LineSegment(App.Vector(-57, 25, 0), App.Vector(-60, 25, 0)),
    Part.LineSegment(App.Vector(-60, 25, 0), App.Vector(-60, 45, 0)),
    Part.LineSegment(App.Vector(57, 25, 0), App.Vector(57, 45, 0)),
    Part.LineSegment(App.Vector(57, 45, 0), App.Vector(60, 45, 0)),
    Part.LineSegment(App.Vector(60, 45, 0), App.Vector(60, 25, 0)),
    Part.LineSegment(App.Vector(60, 25, 0), App.Vector(57, 25, 0)),
], False)
sketch16.addConstraint([
    Sketcher.Constraint("Coincident", 0, 2, 1, 1),
    Sketcher.Constraint("Coincident", 1, 2, 2, 1),
    Sketcher.Constraint("Coincident", 2, 2, 3, 1),
    Sketcher.Constraint("Coincident", 3, 2, 0, 1),
    Sketcher.Constraint("Coincident", 4, 2, 5, 1),
    Sketcher.Constraint("Coincident", 5, 2, 6, 1),
    Sketcher.Constraint("Coincident", 6, 2, 7, 1),
    Sketcher.Constraint("Coincident", 7, 2, 4, 1),
    Sketcher.Constraint("Horizontal", 0),
    Sketcher.Constraint("Vertical", 1),
    Sketcher.Constraint("Horizontal", 2),
    Sketcher.Constraint("Vertical", 3),
    Sketcher.Constraint("Vertical", 4),
    Sketcher.Constraint("Horizontal", 5),
    Sketcher.Constraint("Vertical", 6),
    Sketcher.Constraint("Horizontal", 7),
    Sketcher.Constraint("Symmetric", 0, 2, 4, 2, -2),
    Sketcher.Constraint("Symmetric", 2, 2, 6, 2, -2),
    Sketcher.Constraint("DistanceX", 0, 1, 0, 2, Q("3 mm")),
    Sketcher.Constraint("DistanceY", 1, 2, 1, 1, Q("20 mm")),
    Sketcher.Constraint("DistanceX", 0, 2, -1, 1, Q("57 mm")),
    Sketcher.Constraint("DistanceY", -1, 1, 0, 2, Q("45 mm")),
])
pad6 = body.newObject("PartDesign::Pad", "Pad005")
pad6.Profile = sketch16
pad6.Length = 3

doc.recompute()
